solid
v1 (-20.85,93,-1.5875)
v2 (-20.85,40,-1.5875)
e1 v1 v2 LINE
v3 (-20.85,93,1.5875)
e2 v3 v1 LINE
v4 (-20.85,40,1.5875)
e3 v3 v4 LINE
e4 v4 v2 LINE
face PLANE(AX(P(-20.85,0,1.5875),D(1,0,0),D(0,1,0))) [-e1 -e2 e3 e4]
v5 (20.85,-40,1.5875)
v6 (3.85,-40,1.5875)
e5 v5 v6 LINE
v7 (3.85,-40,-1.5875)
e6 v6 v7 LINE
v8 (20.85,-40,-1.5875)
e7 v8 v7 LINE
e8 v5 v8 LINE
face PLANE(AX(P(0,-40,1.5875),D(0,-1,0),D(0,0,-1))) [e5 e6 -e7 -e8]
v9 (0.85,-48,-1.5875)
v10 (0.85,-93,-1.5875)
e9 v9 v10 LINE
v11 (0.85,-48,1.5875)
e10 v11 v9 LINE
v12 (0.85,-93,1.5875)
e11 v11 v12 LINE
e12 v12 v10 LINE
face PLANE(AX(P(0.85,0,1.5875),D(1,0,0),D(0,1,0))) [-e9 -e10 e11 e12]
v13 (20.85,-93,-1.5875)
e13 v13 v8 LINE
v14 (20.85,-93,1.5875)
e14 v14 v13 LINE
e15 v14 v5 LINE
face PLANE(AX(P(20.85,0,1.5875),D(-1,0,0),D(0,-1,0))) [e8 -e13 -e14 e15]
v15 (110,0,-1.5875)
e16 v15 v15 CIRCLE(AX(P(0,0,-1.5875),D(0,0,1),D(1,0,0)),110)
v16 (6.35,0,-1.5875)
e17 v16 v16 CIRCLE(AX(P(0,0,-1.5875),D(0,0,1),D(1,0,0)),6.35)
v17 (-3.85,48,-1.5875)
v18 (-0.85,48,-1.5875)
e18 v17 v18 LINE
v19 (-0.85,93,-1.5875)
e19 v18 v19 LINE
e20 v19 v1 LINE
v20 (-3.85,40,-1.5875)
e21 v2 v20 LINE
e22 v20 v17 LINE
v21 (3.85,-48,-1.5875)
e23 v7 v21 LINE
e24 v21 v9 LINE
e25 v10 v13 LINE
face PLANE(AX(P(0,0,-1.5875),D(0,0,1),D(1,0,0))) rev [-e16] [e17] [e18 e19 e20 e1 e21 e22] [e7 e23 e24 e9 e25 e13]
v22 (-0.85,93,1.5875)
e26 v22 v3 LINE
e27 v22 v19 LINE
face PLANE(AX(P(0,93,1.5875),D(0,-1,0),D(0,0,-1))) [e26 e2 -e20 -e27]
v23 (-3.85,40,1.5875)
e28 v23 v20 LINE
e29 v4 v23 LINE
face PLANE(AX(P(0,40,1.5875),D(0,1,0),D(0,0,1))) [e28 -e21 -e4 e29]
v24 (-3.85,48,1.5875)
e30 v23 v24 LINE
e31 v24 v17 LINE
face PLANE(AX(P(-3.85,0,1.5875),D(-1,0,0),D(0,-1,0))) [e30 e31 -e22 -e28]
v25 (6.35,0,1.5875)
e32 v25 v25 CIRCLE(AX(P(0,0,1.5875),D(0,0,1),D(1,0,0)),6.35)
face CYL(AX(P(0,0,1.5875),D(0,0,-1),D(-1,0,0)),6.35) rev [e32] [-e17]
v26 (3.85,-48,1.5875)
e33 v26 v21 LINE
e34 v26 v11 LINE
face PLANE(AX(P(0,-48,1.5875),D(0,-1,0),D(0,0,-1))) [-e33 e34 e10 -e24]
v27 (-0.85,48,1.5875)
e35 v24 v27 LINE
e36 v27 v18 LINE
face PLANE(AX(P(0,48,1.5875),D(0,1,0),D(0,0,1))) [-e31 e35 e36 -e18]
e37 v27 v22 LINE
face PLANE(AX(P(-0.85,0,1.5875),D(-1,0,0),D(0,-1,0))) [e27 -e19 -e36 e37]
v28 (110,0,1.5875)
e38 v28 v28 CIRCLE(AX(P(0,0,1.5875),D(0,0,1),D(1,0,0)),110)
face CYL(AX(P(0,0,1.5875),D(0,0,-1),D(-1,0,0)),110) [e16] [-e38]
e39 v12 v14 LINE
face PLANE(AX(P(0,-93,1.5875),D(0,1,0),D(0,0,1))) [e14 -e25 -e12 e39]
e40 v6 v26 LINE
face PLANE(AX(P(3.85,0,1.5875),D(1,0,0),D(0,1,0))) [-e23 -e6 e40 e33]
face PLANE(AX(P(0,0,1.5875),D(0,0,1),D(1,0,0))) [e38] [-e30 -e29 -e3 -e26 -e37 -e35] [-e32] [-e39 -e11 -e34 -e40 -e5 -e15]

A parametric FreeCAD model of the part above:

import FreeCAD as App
import Part
import Sketcher
from FreeCAD import Vector
Q = App.Units.Quantity


def add_polygon(sketch, points):
    """Adds a closed chain of lines whose ends are joined by coincident constraints."""
    first, n = sketch.GeometryCount, len(points)
    for a, b in zip(points, points[1:] + points[:1]):
        sketch.addGeometry(Part.LineSegment(App.Vector(*a, 0), App.Vector(*b, 0)), False)
    for i in range(n):
        sketch.addConstraint(Sketcher.Constraint("Coincident", first + i, 2, first + (i + 1) % n, 1))

doc = App.newDocument("Part")
body = doc.addObject("PartDesign::Body", "Body")

# Sketch on XY plane
sketch1 = body.newObject("Sketcher::SketchObject", "Sketch")
sketch1.AttachmentSupport = (doc.getObject("XY_Plane"), [""])
sketch1.MapMode = "FlatFace"
sketch1.addGeometry(Part.Circle(Vector(0, 0, 0), Vector(0, 0, 1), 110), False)  # 0
add_polygon(sketch1, [(3.9, -40), (20.9, -40), (20.9, -93), (0.8, -93), (0.8, -48), (3.9, -48)])  # lines 1-6
add_polygon(sketch1, [(-3.9, 40), (-20.9, 40), (-20.9, 93), (-0.8, 93), (-0.8, 48), (-3.9, 48)])  # lines 7-12
sketch1.addGeometry(Part.Circle(Vector(0, 0, 0), Vector(0, 0, 1), 6.3), False)  # 13
sketch1.addConstraint([
    Sketcher.Constraint("Horizontal", 1),
    Sketcher.Constraint("Vertical", 2),
    Sketcher.Constraint("Horizontal", 3),
    Sketcher.Constraint("Vertical", 4),
    Sketcher.Constraint("Horizontal", 5),
    Sketcher.Constraint("Vertical", 6),
    Sketcher.Constraint("Horizontal", 7),
    Sketcher.Constraint("Vertical", 8),
    Sketcher.Constraint("Horizontal", 9),
    Sketcher.Constraint("Vertical", 10),
    Sketcher.Constraint("Horizontal", 11),
    Sketcher.Constraint("Vertical", 12),
    Sketcher.Constraint("Coincident", 0, 3, -1, 1),
    Sketcher.Constraint("Coincident", 13, 3, -1, 1),
    Sketcher.Constraint("Symmetric", 1, 2, 7, 2, -1, 1),
    Sketcher.Constraint("Symmetric", 3, 2, 9, 2, -1, 1),
    Sketcher.Constraint("Symmetric", 5, 2, 11, 2, -1, 1),
    Sketcher.Constraint("Diameter", 0, Q("220 mm")),
    Sketcher.Constraint("Diameter", 13, Q("12.7 mm")),
    Sketcher.Constraint("DistanceX", 1, 1, 1, 2, Q("17 mm")),
    Sketcher.Constraint("DistanceX", 3, 2, 3, 1, Q("20 mm")),
    Sketcher.Constraint("DistanceY", 2, 2, 2, 1, Q("53 mm")),
    Sketcher.Constraint("DistanceY", 4, 1, 4, 2, Q("45 mm")),
    Sketcher.Constraint("DistanceY", 1, 2, -1, 1, Q("40 mm")),
    Sketcher.Constraint("DistanceX", 7, 2, 6, 2, Q("24.7 mm")),
])
pad1 = body.newObject("PartDesign::Pad", "Pad")
pad1.Profile = sketch1
pad1.Length = 3.175
pad1.Midplane = True

doc.recompute()
